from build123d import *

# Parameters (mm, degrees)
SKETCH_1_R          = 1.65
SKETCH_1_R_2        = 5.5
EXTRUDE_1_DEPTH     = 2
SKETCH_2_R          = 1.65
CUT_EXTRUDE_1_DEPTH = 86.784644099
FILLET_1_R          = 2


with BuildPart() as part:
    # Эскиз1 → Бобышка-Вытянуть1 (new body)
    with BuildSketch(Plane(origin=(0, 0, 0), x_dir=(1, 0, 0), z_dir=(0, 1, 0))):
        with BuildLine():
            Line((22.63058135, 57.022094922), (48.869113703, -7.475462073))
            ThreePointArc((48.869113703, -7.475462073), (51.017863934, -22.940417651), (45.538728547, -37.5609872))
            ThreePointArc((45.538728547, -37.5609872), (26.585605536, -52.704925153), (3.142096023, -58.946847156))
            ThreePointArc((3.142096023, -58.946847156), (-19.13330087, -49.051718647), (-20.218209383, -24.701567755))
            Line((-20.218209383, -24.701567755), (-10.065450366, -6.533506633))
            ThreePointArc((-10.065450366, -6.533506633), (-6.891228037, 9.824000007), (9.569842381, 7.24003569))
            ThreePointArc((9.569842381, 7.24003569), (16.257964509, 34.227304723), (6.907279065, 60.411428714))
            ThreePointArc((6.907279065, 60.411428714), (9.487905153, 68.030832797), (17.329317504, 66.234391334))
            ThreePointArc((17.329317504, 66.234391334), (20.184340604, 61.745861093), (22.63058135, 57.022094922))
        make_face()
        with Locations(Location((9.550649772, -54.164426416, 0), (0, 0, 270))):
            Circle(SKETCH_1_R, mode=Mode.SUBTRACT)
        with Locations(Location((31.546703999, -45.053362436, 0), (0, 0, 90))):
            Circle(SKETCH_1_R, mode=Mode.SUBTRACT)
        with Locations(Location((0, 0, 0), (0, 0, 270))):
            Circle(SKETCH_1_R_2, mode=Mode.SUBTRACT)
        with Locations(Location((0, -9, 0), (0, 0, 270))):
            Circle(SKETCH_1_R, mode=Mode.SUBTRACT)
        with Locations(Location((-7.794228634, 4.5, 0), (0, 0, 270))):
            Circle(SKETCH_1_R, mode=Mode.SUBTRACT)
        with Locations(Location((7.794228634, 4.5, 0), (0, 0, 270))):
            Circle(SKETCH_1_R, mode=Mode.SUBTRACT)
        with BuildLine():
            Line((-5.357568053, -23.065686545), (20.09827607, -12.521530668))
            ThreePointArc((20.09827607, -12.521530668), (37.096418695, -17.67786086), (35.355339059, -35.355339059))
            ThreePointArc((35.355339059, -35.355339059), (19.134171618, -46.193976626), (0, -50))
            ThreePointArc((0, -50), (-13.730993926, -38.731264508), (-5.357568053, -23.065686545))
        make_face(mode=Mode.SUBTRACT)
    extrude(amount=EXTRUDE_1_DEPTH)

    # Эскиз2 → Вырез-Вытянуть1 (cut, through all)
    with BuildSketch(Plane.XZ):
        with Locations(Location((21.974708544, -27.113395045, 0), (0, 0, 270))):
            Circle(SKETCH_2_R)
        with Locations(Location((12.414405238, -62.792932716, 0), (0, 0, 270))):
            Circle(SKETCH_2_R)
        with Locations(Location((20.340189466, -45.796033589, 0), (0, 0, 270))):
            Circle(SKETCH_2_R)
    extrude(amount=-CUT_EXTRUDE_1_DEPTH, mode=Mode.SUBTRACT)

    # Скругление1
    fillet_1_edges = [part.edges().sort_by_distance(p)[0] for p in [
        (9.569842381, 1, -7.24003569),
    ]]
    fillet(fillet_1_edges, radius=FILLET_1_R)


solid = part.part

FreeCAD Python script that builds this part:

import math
import FreeCAD as App
import Part
import Sketcher
Q = App.Units.Quantity


def edges_at(feature, points):
    """Names of the edges that pass closest to the given points."""
    edges = feature.Shape.Edges
    near = lambda p: min(range(len(edges)), key=lambda i: edges[i].distToShape(Part.Vertex(*p))[0])
    return sorted({f"Edge{near(p) + 1}" for p in points})

doc = App.newDocument("Part")
body = doc.addObject("PartDesign::Body", "Body")

sketch1 = body.newObject("Sketcher::SketchObject", "Sketch")
sketch1.AttachmentSupport = (doc.getObject("XZ_Plane"), [""])
sketch1.MapMode = "FlatFace"
sketch1.addGeometry(Part.LineSegment(App.Vector(48.869114, 7.475462, 0), App.Vector(22.630581, -57.022095, 0)), False)
sketch1.addGeometry(Part.ArcOfCircle(Part.Circle(App.Vector(-31.819805, -31.819805, 0), App.Vector(0, 0, 1), 60), math.radians(-35), math.radians(-24.836997)), False)
sketch1.addGeometry(Part.ArcOfCircle(Part.Circle(App.Vector(12.414405, -62.792933, 0), App.Vector(0, 0, 1), 6), math.radians(156.614393), math.radians(325)), False)
sketch1.addGeometry(Part.ArcOfCircle(Part.Circle(App.Vector(-31.819805, -31.819805, 0), App.Vector(0, 0, 1), 48.13801), math.radians(-36.437894), math.radians(30.704498)), False)
sketch1.addGeometry(Part.ArcOfCircle(Part.Circle(App.Vector(0, 0, 0), App.Vector(0, 0, 1), 12), math.radians(147.012306), math.radians(322.890781)), False)
sketch1.addGeometry(Part.LineSegment(App.Vector(-10.06545, 6.533507, 0), App.Vector(-20.218209, 24.701568, 0)), False)
sketch1.addGeometry(Part.ArcOfCircle(Part.Circle(App.Vector(0, 36, 0), App.Vector(0, 0, 1), 23.160971), math.radians(82.203017), math.radians(209.197532)), False)
sketch1.addGeometry(Part.ArcOfCircle(Part.Circle(App.Vector(0, 0, 0), App.Vector(0, 0, 1), 59.030531), math.radians(39.516294), math.radians(86.9488)), False)
sketch1.addGeometry(Part.ArcOfCircle(Part.Circle(App.Vector(19.445436, 19.445436, 0), App.Vector(0, 0, 1), 31.765281), math.radians(-22.137198), math.radians(34.770733)), False)
sketch1.addGeometry(Part.Circle(App.Vector(31.546704, 45.053362, 0), App.Vector(0, 0, 1), 1.65), False)
sketch1.addGeometry(Part.Circle(App.Vector(9.55065, 54.164426, 0), App.Vector(0, 0, 1), 1.65), False)
sketch1.addGeometry(Part.LineSegment(App.Vector(-5.357568, 23.065687, 0), App.Vector(20.098276, 12.521531, 0)), False)
sketch1.addGeometry(Part.ArcOfCircle(Part.Circle(App.Vector(25.455844, 25.455844, 0), App.Vector(0, 0, 1), 14), math.radians(-112.5), math.radians(45)), False)
sketch1.addGeometry(Part.ArcOfCircle(Part.Circle(App.Vector(0, 0, 0), App.Vector(0, 0, 1), 50), math.radians(45), math.radians(90)), False)
sketch1.addGeometry(Part.ArcOfCircle(Part.Circle(App.Vector(0, 36, 0), App.Vector(0, 0, 1), 14), math.radians(90), math.radians(247.5)), False)
sketch1.addGeometry(Part.Circle(App.Vector(0, 9, 0), App.Vector(0, 0, 1), 1.65), False)
sketch1.addGeometry(Part.Circle(App.Vector(7.794229, -4.5, 0), App.Vector(0, 0, 1), 1.65), False)
sketch1.addGeometry(Part.Circle(App.Vector(0, 0, 0), App.Vector(0, 0, 1), 5.5), False)
sketch1.addGeometry(Part.Circle(App.Vector(-7.794229, -4.5, 0), App.Vector(0, 0, 1), 1.65), False)
sketch1.addConstraint(Sketcher.Constraint("Coincident", 0, 2, 1, 2))
sketch1.addConstraint(Sketcher.Constraint("Tangent", 1, 1, 2, 2))
sketch1.addConstraint(Sketcher.Constraint("Coincident", 2, 1, 3, 1))
sketch1.addConstraint(Sketcher.Constraint("Coincident", 3, 2, 4, 2))
sketch1.addConstraint(Sketcher.Constraint("Coincident", 4, 1, 5, 1))
sketch1.addConstraint(Sketcher.Constraint("Tangent", 5, 2, 6, 2))
sketch1.addConstraint(Sketcher.Constraint("Coincident", 6, 1, 7, 2))
sketch1.addConstraint(Sketcher.Constraint("Coincident", 7, 1, 8, 2))
sketch1.addConstraint(Sketcher.Constraint("Tangent", 8, 1, 0, 1))
sketch1.addConstraint(Sketcher.Constraint("Tangent", 11, 2, 12, 1))
sketch1.addConstraint(Sketcher.Constraint("Tangent", 12, 2, 13, 1))
sketch1.addConstraint(Sketcher.Constraint("Tangent", 13, 2, 14, 1))
sketch1.addConstraint(Sketcher.Constraint("Tangent", 14, 2, 11, 1))
sketch1.addConstraint(Sketcher.Constraint("Coincident", 4, 3, -1, 1))
sketch1.addConstraint(Sketcher.Constraint("Coincident", 7, 3, -1, 1))
sketch1.addConstraint(Sketcher.Constraint("Coincident", 13, 3, -1, 1))
sketch1.addConstraint(Sketcher.Constraint("Coincident", 17, 3, -1, 1))
sketch1.addConstraint(Sketcher.Constraint("Coincident", 3, 3, 1, 3))
sketch1.addConstraint(Sketcher.Constraint("Coincident", 14, 3, 6, 3))
sketch1.addConstraint(Sketcher.Constraint("Equal", 9, 10))
sketch1.addConstraint(Sketcher.Constraint("Equal", 12, 14))
sketch1.addConstraint(Sketcher.Constraint("Equal", 10, 15))
sketch1.addConstraint(Sketcher.Constraint("Equal", 15, 16))
sketch1.addConstraint(Sketcher.Constraint("Equal", 16, 18))
sketch1.addConstraint(Sketcher.Constraint("Symmetric", 16, 3, 18, 3, -2))
sketch1.addConstraint(Sketcher.Constraint("PointOnObject", 6, 3, -2))
sketch1.addConstraint(Sketcher.Constraint("PointOnObject", 15, 3, -2))
sketch1.addConstraint(Sketcher.Constraint("Diameter", 17, 11.0))
sketch1.addConstraint(Sketcher.Constraint("Radius", 1, 60.0))
sketch1.addConstraint(Sketcher.Constraint("Radius", 2, 6.0))
sketch1.addConstraint(Sketcher.Constraint("Radius", 4, 12.0))
sketch1.addConstraint(Sketcher.Constraint("Radius", 12, 14.0))
sketch1.addConstraint(Sketcher.Constraint("Radius", 13, 50.0))
sketch1.addConstraint(Sketcher.Constraint("Diameter", 9, 3.3))
sketch1.addConstraint(Sketcher.Constraint("DistanceY", -1, 1, 15, 3, 9.0))
sketch1.addConstraint(Sketcher.Constraint("Angle", 11, Q("-22.5 deg")))
sketch1.addConstraint(Sketcher.Constraint("DistanceY", 16, 3, -1, 1, 4.5))
sketch1.addConstraint(Sketcher.Constraint("Radius", 3, 48.13801))
sketch1.addConstraint(Sketcher.Constraint("Radius", 6, 23.160971))
sketch1.addConstraint(Sketcher.Constraint("Radius", 7, 59.030531))
sketch1.addConstraint(Sketcher.Constraint("Radius", 8, 31.765281))
sketch1.addConstraint(Sketcher.Constraint("DistanceY", 8, 1, 9, 3, 37.5779))
sketch1.addConstraint(Sketcher.Constraint("Distance", 0, 69.63042))
sketch1.addConstraint(Sketcher.Constraint("DistanceX", -1, 1, 10, 3, 9.55065))
sketch1.addConstraint(Sketcher.Constraint("DistanceX", -1, 1, 16, 3, 7.794229))
sketch1.addConstraint(Sketcher.Constraint("DistanceX", -1, 1, 0, 2, 22.630581))
sketch1.addConstraint(Sketcher.Constraint("DistanceY", 1, 1, -1, 1, 66.234391))
sketch1.addConstraint(Sketcher.Constraint("DistanceX", -1, 1, 2, 1, 6.907279))
sketch1.addConstraint(Sketcher.Constraint("DistanceY", 2, 1, -1, 1, 60.411429))
sketch1.addConstraint(Sketcher.Constraint("DistanceX", 4, 1, -1, 1, 10.06545))
sketch1.addConstraint(Sketcher.Constraint("DistanceX", -1, 1, 7, 1, 45.538729))
sketch1.addConstraint(Sketcher.Constraint("DistanceX", 1, 3, 9, 3, 63.366509))
sketch1.addConstraint(Sketcher.Constraint("DistanceY", 8, 3, 10, 3, 34.71899))
pad1 = body.newObject("PartDesign::Pad", "Pad")
pad1.Profile = sketch1
pad1.Length = 2
pad1.Reversed = True

sketch2 = body.newObject("Sketcher::SketchObject", "Sketch001")
sketch2.AttachmentSupport = (doc.getObject("XZ_Plane"), [""])
sketch2.MapMode = "FlatFace"
sketch2.addGeometry(Part.Circle(App.Vector(21.974709, -27.113395, 0), App.Vector(0, 0, 1), 1.65), False)
sketch2.addGeometry(Part.Circle(App.Vector(12.414405, -62.792933, 0), App.Vector(0, 0, 1), 1.65), False)
sketch2.addGeometry(Part.Circle(App.Vector(20.340189, -45.796034, 0), App.Vector(0, 0, 1), 1.65), False)
sketch2.addConstraint(Sketcher.Constraint("Equal", 0, 1))
sketch2.addConstraint(Sketcher.Constraint("Equal", 1, 2))
sketch2.addConstraint(Sketcher.Constraint("Diameter", 0, 3.3))
sketch2.addConstraint(Sketcher.Constraint("DistanceY", 1, 3, 2, 3, 16.996899))
sketch2.addConstraint(Sketcher.Constraint("DistanceX", -1, 1, 0, 3, 21.974709))
sketch2.addConstraint(Sketcher.Constraint("DistanceX", -1, 1, 2, 3, 20.340189))
sketch2.addConstraint(Sketcher.Constraint("DistanceY", 2, 3, 0, 3, 18.682639))
sketch2.addConstraint(Sketcher.Constraint("DistanceY", 0, 3, -1, 1, 27.113395))
sketch2.addConstraint(Sketcher.Constraint("DistanceX", -1, 1, 1, 3, 12.414405))
pocket1 = body.newObject("PartDesign::Pocket", "Pocket")
pocket1.Profile = sketch2
pocket1.Type = "ThroughAll"
doc.recompute()

fillet = body.newObject("PartDesign::Fillet", "Fillet")
fillet.Base = (pocket1, edges_at(pocket1, [(9.57, 1, -7.24)]))
fillet.Radius = 2

doc.recompute()
